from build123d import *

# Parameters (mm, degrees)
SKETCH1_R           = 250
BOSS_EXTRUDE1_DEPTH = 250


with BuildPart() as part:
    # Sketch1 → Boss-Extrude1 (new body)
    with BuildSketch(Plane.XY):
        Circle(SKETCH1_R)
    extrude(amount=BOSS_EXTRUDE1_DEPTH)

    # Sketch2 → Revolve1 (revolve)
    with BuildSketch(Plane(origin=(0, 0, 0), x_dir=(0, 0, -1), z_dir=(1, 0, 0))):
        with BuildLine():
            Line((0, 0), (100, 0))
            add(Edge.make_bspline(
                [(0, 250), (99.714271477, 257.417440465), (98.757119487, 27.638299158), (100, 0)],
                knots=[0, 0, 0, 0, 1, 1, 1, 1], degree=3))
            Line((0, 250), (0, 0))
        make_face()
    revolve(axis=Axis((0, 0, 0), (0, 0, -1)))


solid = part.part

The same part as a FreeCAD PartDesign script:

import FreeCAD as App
import Part
import Sketcher
from FreeCAD import Vector

doc = App.newDocument("Part")
params = doc.addObject("Spreadsheet::Sheet", "Params")
for row, (alias, value) in enumerate([
    ("sketch1_diameter", "500 mm"),
    ("pad1_length", "250 mm"),
    ("revolution_angle", "360 deg"),
], start=1):
    params.set(f"A{row}", alias)
    params.set(f"B{row}", "=" + value)
    params.setAlias(f"B{row}", alias)

body = doc.addObject("PartDesign::Body", "Body")

# Sketch on XY plane
sketch1 = body.newObject("Sketcher::SketchObject", "Sketch")
sketch1.AttachmentSupport = (doc.getObject("XY_Plane"), [""])
sketch1.MapMode = "FlatFace"
sketch1.addGeometry(Part.Circle(Vector(0, 0, 0), Vector(0, 0, 1), 250), False)
sketch1.addConstraint([
    Sketcher.Constraint("Coincident", 0, 3, -1, 1),
    Sketcher.Constraint("Diameter", 0, 500.0),
])
sketch1.setExpression("Constraints[1]", "Params.sketch1_diameter")
pad1 = body.newObject("PartDesign::Pad", "Pad")
pad1.Profile = sketch1
pad1.setExpression("Length", "Params.pad1_length")

# Sketch on YZ plane
sketch2 = body.newObject("Sketcher::SketchObject", "Sketch001")
sketch2.AttachmentSupport = (doc.getObject("YZ_Plane"), [""])
sketch2.MapMode = "FlatFace"
sketch2.addGeometry([
    Part.LineSegment(Vector(0, 0, 0), Vector(0, -100, 0)),
    Part.BSplineCurve([Vector(250, 0, 0), Vector(257.41744, -99.714271, 0), Vector(27.638299, -98.757119, 0), Vector(0, -100, 0)], [4, 4], [0, 1], False, 3, [1, 1, 1, 1], False),
    Part.LineSegment(Vector(250, 0, 0), Vector(0, 0, 0)),
], False)
sketch2.addConstraint([
    Sketcher.Constraint("Block", 1),
    Sketcher.Constraint("Coincident", 0, 2, 1, 2),
    Sketcher.Constraint("Coincident", 1, 1, 2, 1),
    Sketcher.Constraint("Coincident", 2, 2, 0, 1),
    Sketcher.Constraint("Vertical", 0),
    Sketcher.Constraint("Horizontal", 2),
])
revolution = body.newObject("PartDesign::Revolution", "Revolution")
revolution.Profile = sketch2
revolution.ReferenceAxis = (sketch2, ["V_Axis"])
revolution.setExpression("Angle", "Params.revolution_angle")

doc.recompute()
